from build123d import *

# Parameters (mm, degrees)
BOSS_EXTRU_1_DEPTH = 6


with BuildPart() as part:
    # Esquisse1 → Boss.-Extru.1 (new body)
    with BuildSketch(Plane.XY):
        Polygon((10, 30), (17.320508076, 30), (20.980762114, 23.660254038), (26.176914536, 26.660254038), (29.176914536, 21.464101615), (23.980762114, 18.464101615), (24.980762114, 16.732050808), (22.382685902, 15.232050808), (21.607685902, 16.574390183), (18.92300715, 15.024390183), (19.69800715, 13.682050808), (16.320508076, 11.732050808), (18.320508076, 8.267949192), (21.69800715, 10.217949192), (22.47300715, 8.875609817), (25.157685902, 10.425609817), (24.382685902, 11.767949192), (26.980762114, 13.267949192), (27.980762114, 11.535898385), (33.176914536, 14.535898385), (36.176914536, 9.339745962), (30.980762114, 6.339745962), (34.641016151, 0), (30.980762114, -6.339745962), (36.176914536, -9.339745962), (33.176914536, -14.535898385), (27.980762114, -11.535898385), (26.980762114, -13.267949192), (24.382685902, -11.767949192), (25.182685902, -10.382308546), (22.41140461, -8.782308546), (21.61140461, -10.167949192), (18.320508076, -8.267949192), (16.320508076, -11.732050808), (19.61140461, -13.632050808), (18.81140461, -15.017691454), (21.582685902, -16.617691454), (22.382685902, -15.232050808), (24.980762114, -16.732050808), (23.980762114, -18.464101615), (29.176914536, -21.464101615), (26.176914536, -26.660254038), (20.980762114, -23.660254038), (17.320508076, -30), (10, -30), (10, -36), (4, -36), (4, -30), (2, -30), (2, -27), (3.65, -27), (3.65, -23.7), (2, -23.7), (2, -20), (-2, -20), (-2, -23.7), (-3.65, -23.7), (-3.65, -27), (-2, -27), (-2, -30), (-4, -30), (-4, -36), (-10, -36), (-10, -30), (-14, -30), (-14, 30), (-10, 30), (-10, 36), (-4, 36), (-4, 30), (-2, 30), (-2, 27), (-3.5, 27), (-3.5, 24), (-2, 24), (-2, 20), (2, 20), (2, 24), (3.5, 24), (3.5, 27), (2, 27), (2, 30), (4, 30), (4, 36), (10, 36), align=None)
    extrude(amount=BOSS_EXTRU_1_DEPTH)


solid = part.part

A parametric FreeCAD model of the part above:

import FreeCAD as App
import Part
import Sketcher

V = App.Vector
Q = App.Units.Quantity


def add_polygon(sketch, points):
    """Adds a closed chain of lines whose ends are joined by coincident constraints."""
    first, n = sketch.GeometryCount, len(points)
    for a, b in zip(points, points[1:] + points[:1]):
        sketch.addGeometry(Part.LineSegment(App.Vector(*a, 0), App.Vector(*b, 0)), False)
    for i in range(n):
        sketch.addConstraint(Sketcher.Constraint("Coincident", first + i, 2, first + (i + 1) % n, 1))

doc = App.newDocument("Part")
body = doc.addObject("PartDesign::Body", "Body")

# Sketch on XY plane
sketch1 = body.newObject("Sketcher::SketchObject", "Sketch")
sketch1.AttachmentSupport = (doc.getObject("XY_Plane"), [""])
sketch1.MapMode = "FlatFace"
add_polygon(sketch1, [(17.320508, 30), (10, 30), (10, 36), (4, 36), (4, 30), (2, 30), (2, 27), (3.5, 27), (3.5, 24), (2, 24), (2, 20), (-2, 20), (-2, 24), (-3.5, 24), (-3.5, 27), (-2, 27), (-2, 30), (-4, 30), (-4, 36), (-10, 36), (-10, 30), (-14, 30), (-14, -30), (-10, -30), (-10, -36), (-4, -36), (-4, -30), (-2, -30), (-2, -27), (-3.65, -27), (-3.65, -23.7), (-2, -23.7), (-2, -20), (2, -20), (2, -23.7), (3.65, -23.7), (3.65, -27), (2, -27), (2, -30), (4, -30), (4, -36), (10, -36), (10, -30), (17.320508, -30), (20.980762, -23.660254), (26.176915, -26.660254), (29.176915, -21.464102), (23.980762, -18.464102), (24.980762, -16.732051), (22.382686, -15.232051), (21.582686, -16.617691), (18.811405, -15.017691), (19.611405, -13.632051), (16.320508, -11.732051), (18.320508, -8.267949), (21.611405, -10.167949), (22.411405, -8.782309), (25.182686, -10.382309), (24.382686, -11.767949), (26.980762, -13.267949), (27.980762, -11.535898), (33.176915, -14.535898), (36.176915, -9.339746), (30.980762, -6.339746), (34.641016, 0), (30.980762, 6.339746), (36.176915, 9.339746), (33.176915, 14.535898), (27.980762, 11.535898), (26.980762, 13.267949), (24.382686, 11.767949), (25.157686, 10.42561), (22.473007, 8.87561), (21.698007, 10.217949), (18.320508, 8.267949), (16.320508, 11.732051), (19.698007, 13.682051), (18.923007, 15.02439), (21.607686, 16.57439), (22.382686, 15.232051), (24.980762, 16.732051), (23.980762, 18.464102), (29.176915, 21.464102), (26.176915, 26.660254), (20.980762, 23.660254)])  # lines 0-84
sketch1.addConstraint(Sketcher.Constraint("Horizontal", 0))
sketch1.addConstraint(Sketcher.Constraint("Vertical", 1))
sketch1.addConstraint(Sketcher.Constraint("Horizontal", 2))
sketch1.addConstraint(Sketcher.Constraint("Vertical", 3))
sketch1.addConstraint(Sketcher.Constraint("Horizontal", 4))
sketch1.addConstraint(Sketcher.Constraint("Vertical", 5))
sketch1.addConstraint(Sketcher.Constraint("Horizontal", 6))
sketch1.addConstraint(Sketcher.Constraint("Vertical", 7))
sketch1.addConstraint(Sketcher.Constraint("Horizontal", 8))
sketch1.addConstraint(Sketcher.Constraint("Vertical", 9))
sketch1.addConstraint(Sketcher.Constraint("Horizontal", 10))
sketch1.addConstraint(Sketcher.Constraint("Vertical", 11))
sketch1.addConstraint(Sketcher.Constraint("Horizontal", 12))
sketch1.addConstraint(Sketcher.Constraint("Vertical", 13))
sketch1.addConstraint(Sketcher.Constraint("Horizontal", 14))
sketch1.addConstraint(Sketcher.Constraint("Vertical", 15))
sketch1.addConstraint(Sketcher.Constraint("Horizontal", 16))
sketch1.addConstraint(Sketcher.Constraint("Vertical", 17))
sketch1.addConstraint(Sketcher.Constraint("Horizontal", 18))
sketch1.addConstraint(Sketcher.Constraint("Vertical", 19))
sketch1.addConstraint(Sketcher.Constraint("Horizontal", 20))
sketch1.addConstraint(Sketcher.Constraint("Vertical", 21))
sketch1.addConstraint(Sketcher.Constraint("Horizontal", 22))
sketch1.addConstraint(Sketcher.Constraint("Vertical", 23))
sketch1.addConstraint(Sketcher.Constraint("Horizontal", 24))
sketch1.addConstraint(Sketcher.Constraint("Vertical", 25))
sketch1.addConstraint(Sketcher.Constraint("Horizontal", 26))
sketch1.addConstraint(Sketcher.Constraint("Vertical", 27))
sketch1.addConstraint(Sketcher.Constraint("Horizontal", 28))
sketch1.addConstraint(Sketcher.Constraint("Vertical", 29))
sketch1.addConstraint(Sketcher.Constraint("Horizontal", 30))
sketch1.addConstraint(Sketcher.Constraint("Vertical", 31))
sketch1.addConstraint(Sketcher.Constraint("Horizontal", 32))
sketch1.addConstraint(Sketcher.Constraint("Vertical", 33))
sketch1.addConstraint(Sketcher.Constraint("Horizontal", 34))
sketch1.addConstraint(Sketcher.Constraint("Vertical", 35))
sketch1.addConstraint(Sketcher.Constraint("Horizontal", 36))
sketch1.addConstraint(Sketcher.Constraint("Vertical", 37))
sketch1.addConstraint(Sketcher.Constraint("Horizontal", 38))
sketch1.addConstraint(Sketcher.Constraint("Vertical", 39))
sketch1.addConstraint(Sketcher.Constraint("Horizontal", 40))
sketch1.addConstraint(Sketcher.Constraint("Vertical", 41))
sketch1.addConstraint(Sketcher.Constraint("Horizontal", 42))
sketch1.addConstraint(Sketcher.Constraint("Symmetric", 0, 2, 22, 2, -1, 1))
sketch1.addConstraint(Sketcher.Constraint("Symmetric", 2, 2, 24, 2, -1, 1))
sketch1.addConstraint(Sketcher.Constraint("Symmetric", 4, 2, 26, 2, -1, 1))
sketch1.addConstraint(Sketcher.Constraint("Symmetric", 9, 2, 31, 2, -1, 1))
sketch1.addConstraint(Sketcher.Constraint("Symmetric", 14, 2, 36, 2, -1, 1))
sketch1.addConstraint(Sketcher.Constraint("Symmetric", 16, 2, 38, 2, -1, 1))
sketch1.addConstraint(Sketcher.Constraint("Symmetric", 18, 2, 40, 2, -1, 1))
sketch1.addConstraint(Sketcher.Constraint("Symmetric", 8, 2, 11, 2, -2))
sketch1.addConstraint(Sketcher.Constraint("Symmetric", 6, 2, 13, 2, -2))
sketch1.addConstraint(Sketcher.Constraint("Symmetric", 4, 2, 15, 2, -2))
sketch1.addConstraint(Sketcher.Constraint("Symmetric", 2, 2, 17, 2, -2))
sketch1.addConstraint(Sketcher.Constraint("Symmetric", 0, 2, 19, 2, -2))
sketch1.addConstraint(Sketcher.Constraint("Symmetric", 30, 2, 33, 2, -2))
sketch1.addConstraint(Sketcher.Constraint("Symmetric", 28, 2, 35, 2, -2))
sketch1.addConstraint(Sketcher.Constraint("Symmetric", 62, 2, 64, 2, -1))
sketch1.addConstraint(Sketcher.Constraint("Symmetric", 61, 2, 65, 2, -1))
sketch1.addConstraint(Sketcher.Constraint("Symmetric", 60, 2, 66, 2, -1))
sketch1.addConstraint(Sketcher.Constraint("Symmetric", 59, 2, 67, 2, -1))
sketch1.addConstraint(Sketcher.Constraint("Symmetric", 58, 2, 68, 2, -1))
sketch1.addConstraint(Sketcher.Constraint("Symmetric", 57, 2, 69, 2, -1))
sketch1.addConstraint(Sketcher.Constraint("Symmetric", 53, 2, 73, 2, -1))
sketch1.addConstraint(Sketcher.Constraint("Symmetric", 52, 2, 74, 2, -1))
sketch1.addConstraint(Sketcher.Constraint("Symmetric", 48, 2, 78, 2, -1))
sketch1.addConstraint(Sketcher.Constraint("Symmetric", 47, 2, 79, 2, -1))
sketch1.addConstraint(Sketcher.Constraint("Symmetric", 46, 2, 80, 2, -1))
sketch1.addConstraint(Sketcher.Constraint("Symmetric", 45, 2, 81, 2, -1))
sketch1.addConstraint(Sketcher.Constraint("Symmetric", 44, 2, 82, 2, -1))
sketch1.addConstraint(Sketcher.Constraint("Symmetric", 43, 2, 83, 2, -1))
sketch1.addConstraint(Sketcher.Constraint("Symmetric", 42, 2, 84, 2, -1))
sketch1.addConstraint(Sketcher.Constraint("PointOnObject", 63, 2, -1))
sketch1.addConstraint(Sketcher.Constraint("Perpendicular", 43, 44))
sketch1.addConstraint(Sketcher.Constraint("Perpendicular", 44, 45))
sketch1.addConstraint(Sketcher.Constraint("Perpendicular", 45, 46))
sketch1.addConstraint(Sketcher.Constraint("Perpendicular", 46, 47))
sketch1.addConstraint(Sketcher.Constraint("Perpendicular", 47, 48))
sketch1.addConstraint(Sketcher.Constraint("Perpendicular", 48, 49))
sketch1.addConstraint(Sketcher.Constraint("Perpendicular", 49, 50))
sketch1.addConstraint(Sketcher.Constraint("Perpendicular", 50, 51))
sketch1.addConstraint(Sketcher.Constraint("Perpendicular", 51, 52))
sketch1.addConstraint(Sketcher.Constraint("Perpendicular", 52, 53))
sketch1.addConstraint(Sketcher.Constraint("Perpendicular", 53, 54))
sketch1.addConstraint(Sketcher.Constraint("Perpendicular", 54, 55))
sketch1.addConstraint(Sketcher.Constraint("Perpendicular", 55, 56))
sketch1.addConstraint(Sketcher.Constraint("Perpendicular", 56, 57))
sketch1.addConstraint(Sketcher.Constraint("Perpendicular", 57, 58))
sketch1.addConstraint(Sketcher.Constraint("Perpendicular", 58, 59))
sketch1.addConstraint(Sketcher.Constraint("Perpendicular", 59, 60))
sketch1.addConstraint(Sketcher.Constraint("Perpendicular", 60, 61))
sketch1.addConstraint(Sketcher.Constraint("Perpendicular", 61, 62))
sketch1.addConstraint(Sketcher.Constraint("Perpendicular", 62, 63))
sketch1.addConstraint(Sketcher.Constraint("Perpendicular", 69, 70))
sketch1.addConstraint(Sketcher.Constraint("Perpendicular", 70, 71))
sketch1.addConstraint(Sketcher.Constraint("Perpendicular", 71, 72))
sketch1.addConstraint(Sketcher.Constraint("Perpendicular", 72, 73))
sketch1.addConstraint(Sketcher.Constraint("Perpendicular", 74, 75))
sketch1.addConstraint(Sketcher.Constraint("Perpendicular", 75, 76))
sketch1.addConstraint(Sketcher.Constraint("Perpendicular", 76, 77))
sketch1.addConstraint(Sketcher.Constraint("Perpendicular", 77, 78))
sketch1.addConstraint(Sketcher.Constraint("Horizontal", 0, 2, 3, 2))
sketch1.addConstraint(Sketcher.Constraint("Vertical", 5, 2, 8, 2))
sketch1.addConstraint(Sketcher.Constraint("Equal", 10, 20))
sketch1.addConstraint(Sketcher.Constraint("Equal", 40, 1))
sketch1.addConstraint(Sketcher.Constraint("Equal", 5, 7))
sketch1.addConstraint(Sketcher.Constraint("Equal", 32, 9))
sketch1.addConstraint(Sketcher.Constraint("Equal", 44, 45))
sketch1.addConstraint(Sketcher.Constraint("Equal", 45, 46))
sketch1.addConstraint(Sketcher.Constraint("Equal", 49, 51))
sketch1.addConstraint(Sketcher.Constraint("Equal", 52, 54))
sketch1.addConstraint(Sketcher.Constraint("Equal", 51, 55))
sketch1.addConstraint(Sketcher.Constraint("Equal", 50, 56))
sketch1.addConstraint(Sketcher.Constraint("Equal", 55, 57))
sketch1.addConstraint(Sketcher.Constraint("Equal", 48, 58))
sketch1.addConstraint(Sketcher.Constraint("Equal", 47, 59))
sketch1.addConstraint(Sketcher.Constraint("Equal", 46, 60))
sketch1.addConstraint(Sketcher.Constraint("Equal", 60, 61))
sketch1.addConstraint(Sketcher.Constraint("Equal", 61, 62))
sketch1.addConstraint(Sketcher.Constraint("Equal", 43, 63))
sketch1.addConstraint(Sketcher.Constraint("Equal", 73, 75))
sketch1.addConstraint(Sketcher.Constraint("Equal", 72, 76))
sketch1.addConstraint(Sketcher.Constraint("DistanceX", 2, 2, 2, 1, 6.0))
sketch1.addConstraint(Sketcher.Constraint("DistanceX", 4, 2, 4, 1, 2.0))
sketch1.addConstraint(Sketcher.Constraint("DistanceX", 10, 2, 10, 1, 4.0))
sketch1.addConstraint(Sketcher.Constraint("DistanceY", 5, 2, 5, 1, 3.0))
sketch1.addConstraint(Sketcher.Constraint("DistanceY", 21, 2, 21, 1, 60.0))
sketch1.addConstraint(Sketcher.Constraint("Angle", 43, Q("60 deg")))
sketch1.addConstraint(Sketcher.Constraint("Distance", 44, 6.0))
sketch1.addConstraint(Sketcher.Constraint("Distance", 47, 2.0))
sketch1.addConstraint(Sketcher.Constraint("Distance", 48, 3.0))
sketch1.addConstraint(Sketcher.Constraint("Distance", 53, 4.0))
sketch1.addConstraint(Sketcher.Constraint("DistanceX", 6, 1, 6, 2, 1.5))
sketch1.addConstraint(Sketcher.Constraint("DistanceY", 29, 1, 29, 2, 3.3))
sketch1.addConstraint(Sketcher.Constraint("Distance", 49, 1.6))
sketch1.addConstraint(Sketcher.Constraint("Distance", 50, 3.2))
sketch1.addConstraint(Sketcher.Constraint("Distance", 52, 3.8))
sketch1.addConstraint(Sketcher.Constraint("Distance", 71, 3.1))
sketch1.addConstraint(Sketcher.Constraint("DistanceX", 28, 2, 28, 1, 1.65))
sketch1.addConstraint(Sketcher.Constraint("Distance", 70, 1.55))
sketch1.addConstraint(Sketcher.Constraint("DistanceX", 0, 2, 0, 1, 7.320508))
pad1 = body.newObject("PartDesign::Pad", "Pad")
pad1.Profile = sketch1
pad1.Length = 6

doc.recompute()
